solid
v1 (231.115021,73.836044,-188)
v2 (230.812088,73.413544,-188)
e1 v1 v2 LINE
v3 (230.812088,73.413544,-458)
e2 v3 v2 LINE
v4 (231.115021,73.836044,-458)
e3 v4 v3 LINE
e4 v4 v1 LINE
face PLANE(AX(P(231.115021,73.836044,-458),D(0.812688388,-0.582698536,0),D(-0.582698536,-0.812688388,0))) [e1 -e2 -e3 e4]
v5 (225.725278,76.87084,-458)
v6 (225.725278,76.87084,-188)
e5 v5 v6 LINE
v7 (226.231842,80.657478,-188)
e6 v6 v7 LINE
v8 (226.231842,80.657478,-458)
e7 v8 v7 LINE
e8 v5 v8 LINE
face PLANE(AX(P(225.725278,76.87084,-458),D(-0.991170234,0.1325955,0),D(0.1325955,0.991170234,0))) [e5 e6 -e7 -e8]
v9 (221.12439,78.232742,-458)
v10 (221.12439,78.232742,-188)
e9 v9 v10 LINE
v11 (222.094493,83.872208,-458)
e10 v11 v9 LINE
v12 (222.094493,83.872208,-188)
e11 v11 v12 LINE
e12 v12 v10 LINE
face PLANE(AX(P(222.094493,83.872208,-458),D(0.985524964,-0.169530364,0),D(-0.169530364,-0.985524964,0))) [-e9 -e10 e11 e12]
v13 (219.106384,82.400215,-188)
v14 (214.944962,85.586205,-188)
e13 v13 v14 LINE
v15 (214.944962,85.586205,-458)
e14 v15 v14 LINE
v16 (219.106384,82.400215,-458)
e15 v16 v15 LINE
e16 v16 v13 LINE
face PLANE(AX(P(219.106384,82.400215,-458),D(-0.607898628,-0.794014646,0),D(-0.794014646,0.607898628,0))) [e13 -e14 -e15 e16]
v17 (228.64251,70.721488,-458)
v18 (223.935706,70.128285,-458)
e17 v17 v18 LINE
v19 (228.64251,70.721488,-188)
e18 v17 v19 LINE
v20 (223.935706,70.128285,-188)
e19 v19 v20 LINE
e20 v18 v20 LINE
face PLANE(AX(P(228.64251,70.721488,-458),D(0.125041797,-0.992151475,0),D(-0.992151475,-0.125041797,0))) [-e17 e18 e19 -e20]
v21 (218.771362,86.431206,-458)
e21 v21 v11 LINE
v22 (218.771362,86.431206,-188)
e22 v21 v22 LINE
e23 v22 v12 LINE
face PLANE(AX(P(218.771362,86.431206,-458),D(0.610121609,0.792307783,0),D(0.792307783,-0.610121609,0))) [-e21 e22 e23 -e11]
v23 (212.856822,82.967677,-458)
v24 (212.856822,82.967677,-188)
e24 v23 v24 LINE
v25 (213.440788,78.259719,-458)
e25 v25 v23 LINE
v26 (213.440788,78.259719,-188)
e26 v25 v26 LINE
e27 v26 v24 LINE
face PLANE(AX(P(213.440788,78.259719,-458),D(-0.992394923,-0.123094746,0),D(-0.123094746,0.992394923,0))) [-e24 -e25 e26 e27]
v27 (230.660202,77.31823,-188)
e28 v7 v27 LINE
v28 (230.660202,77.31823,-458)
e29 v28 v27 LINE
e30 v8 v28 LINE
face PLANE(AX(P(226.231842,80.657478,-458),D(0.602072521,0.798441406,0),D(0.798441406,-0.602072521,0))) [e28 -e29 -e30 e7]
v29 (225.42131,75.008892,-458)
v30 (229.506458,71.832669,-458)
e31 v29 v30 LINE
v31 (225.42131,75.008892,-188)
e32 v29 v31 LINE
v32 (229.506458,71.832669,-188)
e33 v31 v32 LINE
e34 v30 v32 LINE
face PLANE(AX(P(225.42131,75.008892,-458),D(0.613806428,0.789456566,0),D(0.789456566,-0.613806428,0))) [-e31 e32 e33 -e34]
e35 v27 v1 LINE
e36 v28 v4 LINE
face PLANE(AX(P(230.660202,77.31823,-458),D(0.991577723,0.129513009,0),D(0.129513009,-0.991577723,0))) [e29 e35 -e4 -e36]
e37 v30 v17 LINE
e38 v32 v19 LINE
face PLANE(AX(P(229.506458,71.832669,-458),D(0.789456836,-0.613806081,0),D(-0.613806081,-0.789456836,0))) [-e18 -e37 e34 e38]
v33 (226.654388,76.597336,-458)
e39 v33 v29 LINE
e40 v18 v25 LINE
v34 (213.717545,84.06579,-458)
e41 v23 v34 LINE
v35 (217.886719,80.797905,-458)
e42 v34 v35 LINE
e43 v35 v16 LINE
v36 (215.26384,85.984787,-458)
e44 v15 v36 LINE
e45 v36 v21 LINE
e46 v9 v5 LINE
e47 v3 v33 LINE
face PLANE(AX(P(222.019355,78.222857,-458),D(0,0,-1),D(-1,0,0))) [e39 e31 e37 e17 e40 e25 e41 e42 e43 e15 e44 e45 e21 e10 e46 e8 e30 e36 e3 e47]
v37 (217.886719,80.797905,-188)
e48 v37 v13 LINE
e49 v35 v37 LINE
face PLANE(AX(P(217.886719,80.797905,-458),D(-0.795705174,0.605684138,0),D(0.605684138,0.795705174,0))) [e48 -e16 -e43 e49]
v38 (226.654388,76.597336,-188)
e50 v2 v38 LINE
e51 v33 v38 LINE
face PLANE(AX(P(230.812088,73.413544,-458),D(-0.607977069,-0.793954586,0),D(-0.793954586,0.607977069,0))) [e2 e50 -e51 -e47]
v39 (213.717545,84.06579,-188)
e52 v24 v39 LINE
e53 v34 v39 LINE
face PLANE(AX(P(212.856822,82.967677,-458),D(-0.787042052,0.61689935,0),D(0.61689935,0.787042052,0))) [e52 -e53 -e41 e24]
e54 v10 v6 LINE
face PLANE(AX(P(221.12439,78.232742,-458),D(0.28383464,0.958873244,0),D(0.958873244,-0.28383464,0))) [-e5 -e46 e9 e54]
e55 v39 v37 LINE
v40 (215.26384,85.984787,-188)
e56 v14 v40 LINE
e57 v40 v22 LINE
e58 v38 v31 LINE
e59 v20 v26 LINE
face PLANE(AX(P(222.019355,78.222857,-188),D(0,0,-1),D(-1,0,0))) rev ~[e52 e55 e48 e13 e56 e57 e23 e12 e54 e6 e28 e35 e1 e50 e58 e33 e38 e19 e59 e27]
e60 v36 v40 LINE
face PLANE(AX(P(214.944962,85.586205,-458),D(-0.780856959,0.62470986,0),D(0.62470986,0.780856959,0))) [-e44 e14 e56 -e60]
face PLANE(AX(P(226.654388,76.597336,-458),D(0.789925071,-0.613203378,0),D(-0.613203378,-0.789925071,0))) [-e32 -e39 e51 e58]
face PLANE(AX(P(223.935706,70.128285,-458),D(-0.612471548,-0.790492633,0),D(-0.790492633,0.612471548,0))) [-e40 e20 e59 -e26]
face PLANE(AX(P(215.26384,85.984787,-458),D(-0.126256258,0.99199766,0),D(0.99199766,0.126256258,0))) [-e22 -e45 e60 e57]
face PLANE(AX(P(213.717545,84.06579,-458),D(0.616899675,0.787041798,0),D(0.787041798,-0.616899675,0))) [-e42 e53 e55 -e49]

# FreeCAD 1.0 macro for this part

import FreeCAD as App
import Part
import Sketcher

V = App.Vector


def add_polygon(sketch, points):
    """Adds a closed chain of lines whose ends are joined by coincident constraints."""
    first, n = sketch.GeometryCount, len(points)
    for a, b in zip(points, points[1:] + points[:1]):
        sketch.addGeometry(Part.LineSegment(App.Vector(*a, 0), App.Vector(*b, 0)), False)
    for i in range(n):
        sketch.addConstraint(Sketcher.Constraint("Coincident", first + i, 2, first + (i + 1) % n, 1))

doc = App.newDocument("Part")
params = doc.addObject("Spreadsheet::Sheet", "Params")
for row, (alias, value) in enumerate([
    ("pad1_length", "270 mm"),
], start=1):
    params.set(f"A{row}", alias)
    params.set(f"B{row}", "=" + value)
    params.setAlias(f"B{row}", alias)

body = doc.addObject("PartDesign::Body", "Body")

# Sketch on XY plane
sketch1 = doc.addObject("Sketcher::SketchObject", "Sketch")
body.addObject(sketch1)
sketch1.AttachmentSupport = (doc.XY_Plane, [""])
sketch1.MapMode = "FlatFace"
sketch1.AttachmentOffset = App.Placement(V(0, 0, -458), App.Rotation())
add_polygon(sketch1, [(213.717545, 84.06579), (212.856822, 82.967677), (213.440788, 78.259719), (223.935706, 70.128285), (228.64251, 70.721488), (229.506458, 71.832669), (225.42131, 75.008892), (226.654388, 76.597336), (230.812088, 73.413544), (231.115021, 73.836044), (230.660202, 77.31823), (226.231842, 80.657478), (225.725278, 76.87084), (221.12439, 78.232742), (222.094493, 83.872208), (218.771362, 86.431206), (215.26384, 85.984787), (214.944962, 85.586205), (219.106384, 82.400215), (217.886719, 80.797905)])  # lines 0-19
sketch1.addConstraint(Sketcher.Constraint("Perpendicular", 4, 5))
sketch1.addConstraint(Sketcher.Constraint("Perpendicular", 0, 19))
sketch1.addConstraint(Sketcher.Constraint("Equal", 1, 3))
sketch1.addConstraint(Sketcher.Constraint("DistanceX", 12, 2, 6, 2, 5.529998))
sketch1.addConstraint(Sketcher.Constraint("DistanceY", 13, 2, 14, 2, 2.558998))
sketch1.addConstraint(Sketcher.Constraint("DistanceY", 16, 2, 14, 2, 0.845001))
sketch1.addConstraint(Sketcher.Constraint("Distance", 18, 2.013698))
sketch1.addConstraint(Sketcher.Constraint("DistanceX", -1, 1, 9, 2, 230.660202))
sketch1.addConstraint(Sketcher.Constraint("DistanceX", 5, 2, 3, 2, 3.2212))
sketch1.addConstraint(Sketcher.Constraint("DistanceX", 1, 2, 6, 2, 13.2136))
sketch1.addConstraint(Sketcher.Constraint("DistanceX", 6, 2, 7, 2, 4.1577))
sketch1.addConstraint(Sketcher.Constraint("DistanceY", 7, 2, 8, 2, 0.4225))
sketch1.addConstraint(Sketcher.Constraint("DistanceX", 16, 2, 14, 2, 3.8264))
sketch1.addConstraint(Sketcher.Constraint("Distance", 0, 1.395241))
sketch1.addConstraint(Sketcher.Constraint("Distance", 6, 2.010879))
sketch1.addConstraint(Sketcher.Constraint("Distance", 8, 0.519879))
sketch1.addConstraint(Sketcher.Constraint("Distance", 11, 3.820371))
sketch1.addConstraint(Sketcher.Constraint("Distance", 16, 0.510442))
sketch1.addConstraint(Sketcher.Constraint("Distance", 17, 5.240989))
sketch1.addConstraint(Sketcher.Constraint("Distance", 19, 5.297271))
sketch1.addConstraint(Sketcher.Constraint("DistanceX", -1, 1, 0, 2, 212.856822))
sketch1.addConstraint(Sketcher.Constraint("DistanceX", -1, 1, 1, 2, 213.440788))
sketch1.addConstraint(Sketcher.Constraint("DistanceY", -1, 1, 1, 2, 78.259719))
sketch1.addConstraint(Sketcher.Constraint("DistanceX", -1, 1, 3, 2, 228.64251))
sketch1.addConstraint(Sketcher.Constraint("DistanceX", -1, 1, 4, 2, 229.506458))
sketch1.addConstraint(Sketcher.Constraint("DistanceY", -1, 1, 4, 2, 71.832669))
sketch1.addConstraint(Sketcher.Constraint("DistanceY", -1, 1, 9, 2, 77.31823))
sketch1.addConstraint(Sketcher.Constraint("DistanceX", -1, 1, 10, 2, 226.231842))
sketch1.addConstraint(Sketcher.Constraint("DistanceX", -1, 1, 11, 2, 225.725278))
sketch1.addConstraint(Sketcher.Constraint("DistanceY", -1, 1, 11, 2, 76.87084))
sketch1.addConstraint(Sketcher.Constraint("DistanceY", -1, 1, 12, 2, 78.232742))
sketch1.addConstraint(Sketcher.Constraint("DistanceY", -1, 1, 13, 2, 83.872208))
sketch1.addConstraint(Sketcher.Constraint("DistanceX", -1, 1, 15, 2, 215.26384))
sketch1.addConstraint(Sketcher.Constraint("DistanceX", -1, 1, 16, 2, 214.944962))
sketch1.addConstraint(Sketcher.Constraint("DistanceX", -1, 1, 18, 2, 217.886719))
sketch1.addConstraint(Sketcher.Constraint("DistanceY", -1, 1, 19, 2, 84.06579))
sketch1.addConstraint(Sketcher.Constraint("DistanceX", 1, 2, 2, 2, 10.494918))
sketch1.addConstraint(Sketcher.Constraint("DistanceY", 2, 2, 0, 2, 12.839392))
sketch1.addConstraint(Sketcher.Constraint("DistanceY", 7, 2, 6, 2, 3.183792))
sketch1.addConstraint(Sketcher.Constraint("DistanceX", 13, 2, 10, 2, 4.137349))
pad1 = doc.addObject("PartDesign::Pad", "Pad")
body.addObject(pad1)
pad1.Profile = sketch1
pad1.setExpression("Length", "Params.pad1_length")

doc.recompute()
